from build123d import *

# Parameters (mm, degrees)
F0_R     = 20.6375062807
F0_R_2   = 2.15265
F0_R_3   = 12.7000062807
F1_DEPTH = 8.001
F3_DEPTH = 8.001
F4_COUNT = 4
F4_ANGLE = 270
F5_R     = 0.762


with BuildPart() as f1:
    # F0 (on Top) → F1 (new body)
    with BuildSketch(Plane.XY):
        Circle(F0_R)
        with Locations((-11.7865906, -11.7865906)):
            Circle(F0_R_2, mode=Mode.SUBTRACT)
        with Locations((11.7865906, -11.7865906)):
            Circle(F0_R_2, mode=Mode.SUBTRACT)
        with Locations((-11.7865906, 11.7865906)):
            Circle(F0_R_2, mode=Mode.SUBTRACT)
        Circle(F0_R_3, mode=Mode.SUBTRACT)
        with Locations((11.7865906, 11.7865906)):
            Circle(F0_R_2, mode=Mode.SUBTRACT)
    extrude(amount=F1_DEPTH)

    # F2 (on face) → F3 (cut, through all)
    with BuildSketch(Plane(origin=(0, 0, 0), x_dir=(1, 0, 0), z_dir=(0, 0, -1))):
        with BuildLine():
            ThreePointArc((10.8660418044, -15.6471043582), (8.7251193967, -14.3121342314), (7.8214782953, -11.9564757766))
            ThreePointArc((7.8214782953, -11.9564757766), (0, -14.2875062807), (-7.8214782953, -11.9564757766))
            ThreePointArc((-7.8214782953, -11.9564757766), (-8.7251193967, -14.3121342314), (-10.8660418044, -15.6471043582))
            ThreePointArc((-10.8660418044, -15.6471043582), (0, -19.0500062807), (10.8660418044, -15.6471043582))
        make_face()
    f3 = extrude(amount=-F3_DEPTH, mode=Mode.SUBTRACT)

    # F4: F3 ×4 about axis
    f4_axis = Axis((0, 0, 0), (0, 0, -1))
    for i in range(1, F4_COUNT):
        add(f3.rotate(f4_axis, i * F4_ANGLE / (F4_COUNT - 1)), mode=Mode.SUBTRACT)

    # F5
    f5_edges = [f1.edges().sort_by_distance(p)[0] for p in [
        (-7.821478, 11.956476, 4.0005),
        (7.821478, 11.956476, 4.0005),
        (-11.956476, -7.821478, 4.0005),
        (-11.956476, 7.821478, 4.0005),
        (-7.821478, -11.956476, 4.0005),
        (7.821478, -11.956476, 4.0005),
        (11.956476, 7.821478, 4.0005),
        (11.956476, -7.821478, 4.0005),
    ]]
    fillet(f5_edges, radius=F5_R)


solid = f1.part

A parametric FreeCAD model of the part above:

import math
import FreeCAD as App
import Part
import Sketcher
Q = App.Units.Quantity


def edges_at(feature, points):
    """Names of the edges that pass closest to the given points."""
    edges = feature.Shape.Edges
    near = lambda p: min(range(len(edges)), key=lambda i: edges[i].distToShape(Part.Vertex(*p))[0])
    return sorted({f"Edge{near(p) + 1}" for p in points})

doc = App.newDocument("Part")
body = doc.addObject("PartDesign::Body", "Body")

# Sketch on XY plane
sketch1 = body.newObject("Sketcher::SketchObject", "Sketch")
sketch1.AttachmentSupport = (doc.getObject("XY_Plane"), [""])
sketch1.MapMode = "FlatFace"
sketch1.addGeometry([
    Part.Circle(App.Vector(0, 0, 0), App.Vector(0, 0, 1), 20.6),  # 0
    Part.Circle(App.Vector(-11.8, -11.8, 0), App.Vector(0, 0, 1), 2.2),  # 1
    Part.Circle(App.Vector(11.8, -11.8, 0), App.Vector(0, 0, 1), 2.2),  # 2
    Part.Circle(App.Vector(-11.8, 11.8, 0), App.Vector(0, 0, 1), 2.2),  # 3
    Part.Circle(App.Vector(0, 0, 0), App.Vector(0, 0, 1), 12.7),  # 4
    Part.Circle(App.Vector(11.8, 11.8, 0), App.Vector(0, 0, 1), 2.2),  # 5
], False)
sketch1.addConstraint([
    Sketcher.Constraint("Coincident", 0, 3, -1, 1),
    Sketcher.Constraint("Coincident", 4, 3, -1, 1),
    Sketcher.Constraint("Equal", 1, 2),
    Sketcher.Constraint("Equal", 2, 3),
    Sketcher.Constraint("Equal", 3, 5),
    Sketcher.Constraint("Symmetric", 2, 3, 3, 3, -1, 1),
    Sketcher.Constraint("Symmetric", 1, 3, 5, 3, -1, 1),
    Sketcher.Constraint("Symmetric", 1, 3, 2, 3, -2),
    Sketcher.Constraint("Diameter", 1, Q("0.1695 in")),
    Sketcher.Constraint("Diameter", 0, 41.275013),
    Sketcher.Constraint("Diameter", 4, 25.400013),
    Sketcher.Constraint("DistanceX", 1, 3, -1, 1, 11.786591),
    Sketcher.Constraint("DistanceY", 1, 3, -1, 1, 11.786591),
])
pad1 = body.newObject("PartDesign::Pad", "Pad")
pad1.Profile = sketch1
pad1.Length = Q("0.315 in")

# Sketch on XY plane
sketch2 = body.newObject("Sketcher::SketchObject", "Sketch001")
sketch2.AttachmentSupport = (doc.getObject("XY_Plane"), [""])
sketch2.MapMode = "FlatFace"
sketch2.addGeometry([
    Part.ArcOfCircle(Part.Circle(App.Vector(11.8, 11.8, 0), App.Vector(0, 0, 1), 4), math.radians(103), math.radians(178)),
    Part.ArcOfCircle(Part.Circle(App.Vector(0, 0, 0), App.Vector(0, 0, 1), 14.3), math.radians(57), math.radians(123)),
    Part.ArcOfCircle(Part.Circle(App.Vector(-11.8, 11.8, 0), App.Vector(0, 0, 1), 4), math.radians(2), math.radians(77)),
    Part.ArcOfCircle(Part.Circle(App.Vector(0, 0, 0), App.Vector(0, 0, 1), 19.1), math.radians(55), math.radians(125)),
], False)
sketch2.addConstraint([
    Sketcher.Constraint("Coincident", 0, 2, 1, 1),
    Sketcher.Constraint("Coincident", 1, 2, 2, 1),
    Sketcher.Constraint("Coincident", 2, 2, 3, 2),
    Sketcher.Constraint("Coincident", 3, 1, 0, 1),
    Sketcher.Constraint("Coincident", 1, 3, -1, 1),
    Sketcher.Constraint("Coincident", 3, 3, -1, 1),
    Sketcher.Constraint("Equal", 0, 2),
    Sketcher.Constraint("Symmetric", 0, 3, 2, 3, -2),
    Sketcher.Constraint("Radius", 0, Q("0.15625 in")),
    Sketcher.Constraint("Radius", 1, 14.287506),
    Sketcher.Constraint("Radius", 3, 19.050006),
    Sketcher.Constraint("DistanceX", -1, 1, 0, 3, 11.786591),
    Sketcher.Constraint("DistanceY", -1, 1, 0, 3, 11.786591),
])
pocket1 = body.newObject("PartDesign::Pocket", "Pocket")
pocket1.Profile = sketch2
pocket1.Type = "ThroughAll"
pocket1.Reversed = True
doc.recompute()

polarpattern = body.newObject("PartDesign::PolarPattern", "PolarPattern")
polarpattern.Originals = [pocket1]
polarpattern.Axis = (doc.getObject("Z_Axis"), [""])
polarpattern.Angle = 360
polarpattern.Occurrences = 4
body.Tip = polarpattern
doc.recompute()

fillet = body.newObject("PartDesign::Fillet", "Fillet")
fillet.Base = (polarpattern, edges_at(polarpattern, [
    (-7.821, 11.956, 4),
    (7.821, 11.956, 4),
    (-11.956, -7.821, 4),
    (-11.956, 7.821, 4),
    (-7.821, -11.956, 4),
    (7.821, -11.956, 4),
    (11.956, 7.821, 4),
    (11.956, -7.821, 4),
]))
fillet.Radius = Q("0.03 in")

doc.recompute()
